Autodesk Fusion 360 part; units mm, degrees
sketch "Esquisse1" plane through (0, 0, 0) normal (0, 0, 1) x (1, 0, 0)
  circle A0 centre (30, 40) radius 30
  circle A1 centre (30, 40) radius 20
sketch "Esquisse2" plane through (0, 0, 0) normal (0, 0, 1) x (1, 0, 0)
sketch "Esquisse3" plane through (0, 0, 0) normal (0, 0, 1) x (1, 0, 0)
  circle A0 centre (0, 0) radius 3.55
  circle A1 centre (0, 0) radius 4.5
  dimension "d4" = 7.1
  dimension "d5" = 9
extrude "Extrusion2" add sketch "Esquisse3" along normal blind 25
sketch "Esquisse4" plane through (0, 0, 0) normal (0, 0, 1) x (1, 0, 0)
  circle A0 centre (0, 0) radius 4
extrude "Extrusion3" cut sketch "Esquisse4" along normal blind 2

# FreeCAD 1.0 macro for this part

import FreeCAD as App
import Part
import Sketcher
Q = App.Units.Quantity

doc = App.newDocument("Part")
body = doc.addObject("PartDesign::Body", "Body")

sketch1 = body.newObject("Sketcher::SketchObject", "Sketch")
sketch1.AttachmentSupport = (doc.getObject("XY_Plane"), [""])
sketch1.MapMode = "FlatFace"
sketch1.addGeometry([
    Part.Circle(App.Vector(0, 0, 0), App.Vector(0, 0, 1), 4.5),
    Part.Circle(App.Vector(0, 0, 0), App.Vector(0, 0, 1), 3.5),
], False)
sketch1.addConstraint([
    Sketcher.Constraint("Coincident", 0, 3, -1, 1),
    Sketcher.Constraint("Coincident", 1, 3, -1, 1),
    Sketcher.Constraint("Diameter", 0, Q("9 mm")),
    Sketcher.Constraint("Diameter", 1, Q("7.1 mm")),
])
pad1 = body.newObject("PartDesign::Pad", "Pad")
pad1.Profile = sketch1
pad1.Length = 25

sketch2 = body.newObject("Sketcher::SketchObject", "Sketch001")
sketch2.AttachmentSupport = (doc.getObject("XY_Plane"), [""])
sketch2.MapMode = "FlatFace"
sketch2.addGeometry(Part.Circle(App.Vector(0, 0, 0), App.Vector(0, 0, 1), 4), False)
sketch2.addConstraint([
    Sketcher.Constraint("Coincident", 0, 3, -1, 1),
    Sketcher.Constraint("Diameter", 0, Q("8 mm")),
])
pocket1 = body.newObject("PartDesign::Pocket", "Pocket")
pocket1.Profile = sketch2
pocket1.Length = 2
pocket1.Reversed = True

doc.recompute()
